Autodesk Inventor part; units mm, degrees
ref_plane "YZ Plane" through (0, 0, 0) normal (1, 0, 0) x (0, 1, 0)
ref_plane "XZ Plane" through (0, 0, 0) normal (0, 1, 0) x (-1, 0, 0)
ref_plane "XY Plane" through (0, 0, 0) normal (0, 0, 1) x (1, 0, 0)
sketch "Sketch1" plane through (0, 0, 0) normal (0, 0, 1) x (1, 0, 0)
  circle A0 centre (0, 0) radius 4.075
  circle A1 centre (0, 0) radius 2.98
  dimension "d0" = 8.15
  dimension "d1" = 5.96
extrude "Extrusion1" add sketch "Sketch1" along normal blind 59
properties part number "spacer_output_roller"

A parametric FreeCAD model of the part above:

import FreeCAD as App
import Part
import Sketcher

V = App.Vector

doc = App.newDocument("Part")
body = doc.addObject("PartDesign::Body", "Body")

sketch1 = body.newObject("Sketcher::SketchObject", "Sketch")
sketch1.AttachmentSupport = (doc.getObject("XY_Plane"), [""])
sketch1.MapMode = "FlatFace"
sketch1.addGeometry([
    Part.Circle(V(0, 0, 0), V(0, 0, 1), 4.075),
    Part.Circle(V(0, 0, 0), V(0, 0, 1), 2.98),
], False)
sketch1.addConstraint([
    Sketcher.Constraint("Coincident", 0, 3, -1, 1),
    Sketcher.Constraint("Coincident", 1, 3, -1, 1),
    Sketcher.Constraint("Diameter", 0, 8.15),
    Sketcher.Constraint("Diameter", 1, 5.96),
])
pad1 = body.newObject("PartDesign::Pad", "Pad")
pad1.Profile = sketch1
pad1.Length = 59

doc.recompute()
